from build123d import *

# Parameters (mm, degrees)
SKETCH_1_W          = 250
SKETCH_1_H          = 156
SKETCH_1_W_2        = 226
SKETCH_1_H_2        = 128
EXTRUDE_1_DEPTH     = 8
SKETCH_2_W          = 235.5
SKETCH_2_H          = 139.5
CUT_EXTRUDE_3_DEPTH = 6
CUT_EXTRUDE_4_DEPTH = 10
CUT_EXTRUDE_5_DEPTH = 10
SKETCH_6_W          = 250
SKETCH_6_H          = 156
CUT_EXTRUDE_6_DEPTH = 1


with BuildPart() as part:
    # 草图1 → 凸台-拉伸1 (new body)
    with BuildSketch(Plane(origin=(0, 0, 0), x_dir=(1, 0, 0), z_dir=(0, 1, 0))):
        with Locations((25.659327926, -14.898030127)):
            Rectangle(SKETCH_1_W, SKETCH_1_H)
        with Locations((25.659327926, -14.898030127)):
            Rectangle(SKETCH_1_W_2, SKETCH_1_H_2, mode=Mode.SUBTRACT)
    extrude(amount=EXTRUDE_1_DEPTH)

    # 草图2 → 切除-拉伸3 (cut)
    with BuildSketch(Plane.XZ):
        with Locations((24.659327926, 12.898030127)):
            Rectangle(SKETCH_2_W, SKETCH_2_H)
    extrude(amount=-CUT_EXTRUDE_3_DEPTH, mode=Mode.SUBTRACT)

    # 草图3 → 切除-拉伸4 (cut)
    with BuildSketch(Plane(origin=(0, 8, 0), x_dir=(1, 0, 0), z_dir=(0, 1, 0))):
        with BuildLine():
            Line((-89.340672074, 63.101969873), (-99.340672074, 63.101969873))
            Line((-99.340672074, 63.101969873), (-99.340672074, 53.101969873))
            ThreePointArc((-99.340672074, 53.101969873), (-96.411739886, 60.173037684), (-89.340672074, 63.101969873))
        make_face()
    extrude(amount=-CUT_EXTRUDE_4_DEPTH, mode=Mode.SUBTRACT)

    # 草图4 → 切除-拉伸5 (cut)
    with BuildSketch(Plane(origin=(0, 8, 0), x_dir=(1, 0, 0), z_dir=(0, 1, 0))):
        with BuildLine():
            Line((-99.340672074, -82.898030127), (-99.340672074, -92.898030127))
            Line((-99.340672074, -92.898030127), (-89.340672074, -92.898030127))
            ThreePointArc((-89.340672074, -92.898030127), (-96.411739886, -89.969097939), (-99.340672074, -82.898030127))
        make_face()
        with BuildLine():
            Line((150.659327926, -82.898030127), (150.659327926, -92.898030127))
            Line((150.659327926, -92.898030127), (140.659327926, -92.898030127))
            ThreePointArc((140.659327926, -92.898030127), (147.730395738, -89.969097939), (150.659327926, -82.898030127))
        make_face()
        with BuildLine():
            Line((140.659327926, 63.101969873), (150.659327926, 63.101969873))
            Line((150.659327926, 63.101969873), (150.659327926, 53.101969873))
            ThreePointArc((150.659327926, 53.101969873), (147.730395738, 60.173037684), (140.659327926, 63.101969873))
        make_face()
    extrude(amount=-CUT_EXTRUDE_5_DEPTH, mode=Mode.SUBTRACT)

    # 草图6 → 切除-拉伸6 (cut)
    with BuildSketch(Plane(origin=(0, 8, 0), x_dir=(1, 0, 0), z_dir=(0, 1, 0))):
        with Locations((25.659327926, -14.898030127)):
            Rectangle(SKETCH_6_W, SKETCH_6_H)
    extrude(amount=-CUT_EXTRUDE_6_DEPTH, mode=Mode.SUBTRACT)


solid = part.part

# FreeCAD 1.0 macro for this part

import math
import FreeCAD as App
import Part
import Sketcher


def add_polygon(sketch, points):
    """Adds a closed chain of lines whose ends are joined by coincident constraints."""
    first, n = sketch.GeometryCount, len(points)
    for a, b in zip(points, points[1:] + points[:1]):
        sketch.addGeometry(Part.LineSegment(App.Vector(*a, 0), App.Vector(*b, 0)), False)
    for i in range(n):
        sketch.addConstraint(Sketcher.Constraint("Coincident", first + i, 2, first + (i + 1) % n, 1))

doc = App.newDocument("Part")
body = doc.addObject("PartDesign::Body", "Body")

# Sketch on XZ plane
sketch1 = doc.addObject("Sketcher::SketchObject", "Sketch")
body.addObject(sketch1)
sketch1.AttachmentSupport = (doc.XZ_Plane, [""])
sketch1.MapMode = "FlatFace"
add_polygon(sketch1, [(-99, -63), (-99, 93), (151, 93), (151, -63)])  # lines 0-3
add_polygon(sketch1, [(139, 79), (-87, 79), (-87, -49), (139, -49)])  # lines 4-7
sketch1.addConstraint(Sketcher.Constraint("Vertical", 0))
sketch1.addConstraint(Sketcher.Constraint("Horizontal", 1))
sketch1.addConstraint(Sketcher.Constraint("Vertical", 2))
sketch1.addConstraint(Sketcher.Constraint("Horizontal", 3))
sketch1.addConstraint(Sketcher.Constraint("Horizontal", 4))
sketch1.addConstraint(Sketcher.Constraint("Vertical", 5))
sketch1.addConstraint(Sketcher.Constraint("Horizontal", 6))
sketch1.addConstraint(Sketcher.Constraint("Vertical", 7))
sketch1.addConstraint(Sketcher.Constraint("DistanceX", 1, 1, 1, 2, 250.0))
sketch1.addConstraint(Sketcher.Constraint("DistanceX", 4, 2, 4, 1, 226.0))
sketch1.addConstraint(Sketcher.Constraint("DistanceY", 0, 1, 0, 2, 156.0))
sketch1.addConstraint(Sketcher.Constraint("DistanceY", 5, 2, 5, 1, 128.0))
sketch1.addConstraint(Sketcher.Constraint("DistanceX", 0, 2, 4, 2, 12.0))
sketch1.addConstraint(Sketcher.Constraint("DistanceY", 4, 2, 0, 2, 14.0))
sketch1.addConstraint(Sketcher.Constraint("DistanceY", -1, 1, 0, 2, 92.89803))
sketch1.addConstraint(Sketcher.Constraint("DistanceX", 0, 2, -1, 1, 99.340672))
pad1 = doc.addObject("PartDesign::Pad", "Pad")
body.addObject(pad1)
pad1.Profile = sketch1
pad1.Length = 8
pad1.Reversed = True

# Sketch on XZ plane
sketch2 = doc.addObject("Sketcher::SketchObject", "Sketch001")
body.addObject(sketch2)
sketch2.AttachmentSupport = (doc.XZ_Plane, [""])
sketch2.MapMode = "FlatFace"
add_polygon(sketch2, [(-93, 83), (-93, -57), (142, -57), (142, 83)])  # lines 0-3
sketch2.addConstraint(Sketcher.Constraint("Vertical", 0))
sketch2.addConstraint(Sketcher.Constraint("Horizontal", 1))
sketch2.addConstraint(Sketcher.Constraint("Vertical", 2))
sketch2.addConstraint(Sketcher.Constraint("Horizontal", 3))
sketch2.addConstraint(Sketcher.Constraint("DistanceX", 1, 1, 1, 2, 235.5))
sketch2.addConstraint(Sketcher.Constraint("DistanceY", 0, 2, 0, 1, 139.5))
sketch2.addConstraint(Sketcher.Constraint("DistanceY", 0, 2, -1, 1, 56.85197))
sketch2.addConstraint(Sketcher.Constraint("DistanceX", 0, 2, -1, 1, 93.090672))
pocket1 = doc.addObject("PartDesign::Pocket", "Pocket")
body.addObject(pocket1)
pocket1.Profile = sketch2
pocket1.Length = 6

# Sketch on XZ plane
sketch3 = doc.addObject("Sketcher::SketchObject", "Sketch002")
body.addObject(sketch3)
sketch3.AttachmentSupport = (doc.XZ_Plane, [""])
sketch3.MapMode = "FlatFace"
sketch3.AttachmentOffset = App.Placement(App.Vector(0, 0, -8), App.Rotation())
sketch3.addGeometry(Part.LineSegment(App.Vector(-89, -63, 0), App.Vector(-99, -63, 0)), False)
sketch3.addGeometry(Part.LineSegment(App.Vector(-99, -63, 0), App.Vector(-99, -53, 0)), False)
sketch3.addGeometry(Part.ArcOfCircle(Part.Circle(App.Vector(-89, -53, 0), App.Vector(0, 0, 1), 10), math.radians(-180), math.radians(-90)), False)
sketch3.addConstraint(Sketcher.Constraint("Coincident", 0, 2, 1, 1))
sketch3.addConstraint(Sketcher.Constraint("Tangent", 1, 2, 2, 1))
sketch3.addConstraint(Sketcher.Constraint("Tangent", 2, 2, 0, 1))
sketch3.addConstraint(Sketcher.Constraint("Horizontal", 0))
sketch3.addConstraint(Sketcher.Constraint("Vertical", 1))
sketch3.addConstraint(Sketcher.Constraint("Radius", 2, 10.0))
sketch3.addConstraint(Sketcher.Constraint("DistanceY", 2, 3, -1, 1, 53.10197))
sketch3.addConstraint(Sketcher.Constraint("DistanceX", 2, 3, -1, 1, 89.340672))
pocket2 = doc.addObject("PartDesign::Pocket", "Pocket001")
body.addObject(pocket2)
pocket2.Profile = sketch3
pocket2.Length = 10
pocket2.Reversed = True

# Sketch on XZ plane
sketch4 = doc.addObject("Sketcher::SketchObject", "Sketch003")
body.addObject(sketch4)
sketch4.AttachmentSupport = (doc.XZ_Plane, [""])
sketch4.MapMode = "FlatFace"
sketch4.AttachmentOffset = App.Placement(App.Vector(0, 0, -8), App.Rotation())
sketch4.addGeometry(Part.LineSegment(App.Vector(-99, 83, 0), App.Vector(-99, 93, 0)), False)
sketch4.addGeometry(Part.LineSegment(App.Vector(-99, 93, 0), App.Vector(-89, 93, 0)), False)
sketch4.addGeometry(Part.ArcOfCircle(Part.Circle(App.Vector(-89, 83, 0), App.Vector(0, 0, 1), 10), math.radians(90), math.radians(180)), False)
sketch4.addGeometry(Part.LineSegment(App.Vector(151, 93, 0), App.Vector(151, 83, 0)), False)
sketch4.addGeometry(Part.ArcOfCircle(Part.Circle(App.Vector(141, 83, 0), App.Vector(0, 0, 1), 10), math.radians(0), math.radians(90)), False)
sketch4.addGeometry(Part.LineSegment(App.Vector(141, 93, 0), App.Vector(151, 93, 0)), False)
sketch4.addGeometry(Part.LineSegment(App.Vector(151, -63, 0), App.Vector(141, -63, 0)), False)
sketch4.addGeometry(Part.ArcOfCircle(Part.Circle(App.Vector(141, -53, 0), App.Vector(0, 0, 1), 10), math.radians(-90), math.radians(0)), False)
sketch4.addGeometry(Part.LineSegment(App.Vector(151, -53, 0), App.Vector(151, -63, 0)), False)
sketch4.addConstraint(Sketcher.Constraint("Coincident", 0, 2, 1, 1))
sketch4.addConstraint(Sketcher.Constraint("Tangent", 1, 2, 2, 1))
sketch4.addConstraint(Sketcher.Constraint("Tangent", 2, 2, 0, 1))
sketch4.addConstraint(Sketcher.Constraint("Tangent", 3, 2, 4, 1))
sketch4.addConstraint(Sketcher.Constraint("Tangent", 4, 2, 5, 1))
sketch4.addConstraint(Sketcher.Constraint("Coincident", 5, 2, 3, 1))
sketch4.addConstraint(Sketcher.Constraint("Tangent", 6, 2, 7, 1))
sketch4.addConstraint(Sketcher.Constraint("Tangent", 7, 2, 8, 1))
sketch4.addConstraint(Sketcher.Constraint("Coincident", 8, 2, 6, 1))
sketch4.addConstraint(Sketcher.Constraint("Vertical", 0))
sketch4.addConstraint(Sketcher.Constraint("Horizontal", 1))
sketch4.addConstraint(Sketcher.Constraint("Vertical", 3))
sketch4.addConstraint(Sketcher.Constraint("Horizontal", 5))
sketch4.addConstraint(Sketcher.Constraint("Horizontal", 6))
sketch4.addConstraint(Sketcher.Constraint("Vertical", 8))
sketch4.addConstraint(Sketcher.Constraint("Equal", 2, 4))
sketch4.addConstraint(Sketcher.Constraint("Equal", 4, 7))
sketch4.addConstraint(Sketcher.Constraint("Horizontal", 2, 3, 4, 3))
sketch4.addConstraint(Sketcher.Constraint("Vertical", 4, 3, 7, 3))
sketch4.addConstraint(Sketcher.Constraint("Radius", 2, 10.0))
sketch4.addConstraint(Sketcher.Constraint("DistanceX", 2, 3, 4, 3, 230.0))
sketch4.addConstraint(Sketcher.Constraint("DistanceY", 7, 3, 4, 3, 136.0))
sketch4.addConstraint(Sketcher.Constraint("DistanceY", -1, 1, 2, 3, 82.89803))
sketch4.addConstraint(Sketcher.Constraint("DistanceX", 2, 3, -1, 1, 89.340672))
pocket3 = doc.addObject("PartDesign::Pocket", "Pocket002")
body.addObject(pocket3)
pocket3.Profile = sketch4
pocket3.Length = 10
pocket3.Reversed = True

# Sketch on XZ plane
sketch5 = doc.addObject("Sketcher::SketchObject", "Sketch004")
body.addObject(sketch5)
sketch5.AttachmentSupport = (doc.XZ_Plane, [""])
sketch5.MapMode = "FlatFace"
sketch5.AttachmentOffset = App.Placement(App.Vector(0, 0, -8), App.Rotation())
add_polygon(sketch5, [(-99, -63), (-99, 93), (151, 93), (151, -63)])  # lines 0-3
sketch5.addConstraint(Sketcher.Constraint("Vertical", 0))
sketch5.addConstraint(Sketcher.Constraint("Horizontal", 1))
sketch5.addConstraint(Sketcher.Constraint("Vertical", 2))
sketch5.addConstraint(Sketcher.Constraint("Horizontal", 3))
sketch5.addConstraint(Sketcher.Constraint("DistanceX", 1, 1, 1, 2, 250.0))
sketch5.addConstraint(Sketcher.Constraint("DistanceY", 0, 1, 0, 2, 156.0))
sketch5.addConstraint(Sketcher.Constraint("DistanceY", -1, 1, 0, 2, 92.89803))
sketch5.addConstraint(Sketcher.Constraint("DistanceX", 0, 2, -1, 1, 99.340672))
pocket4 = doc.addObject("PartDesign::Pocket", "Pocket003")
body.addObject(pocket4)
pocket4.Profile = sketch5
pocket4.Length = 1
pocket4.Reversed = True

doc.recompute()
